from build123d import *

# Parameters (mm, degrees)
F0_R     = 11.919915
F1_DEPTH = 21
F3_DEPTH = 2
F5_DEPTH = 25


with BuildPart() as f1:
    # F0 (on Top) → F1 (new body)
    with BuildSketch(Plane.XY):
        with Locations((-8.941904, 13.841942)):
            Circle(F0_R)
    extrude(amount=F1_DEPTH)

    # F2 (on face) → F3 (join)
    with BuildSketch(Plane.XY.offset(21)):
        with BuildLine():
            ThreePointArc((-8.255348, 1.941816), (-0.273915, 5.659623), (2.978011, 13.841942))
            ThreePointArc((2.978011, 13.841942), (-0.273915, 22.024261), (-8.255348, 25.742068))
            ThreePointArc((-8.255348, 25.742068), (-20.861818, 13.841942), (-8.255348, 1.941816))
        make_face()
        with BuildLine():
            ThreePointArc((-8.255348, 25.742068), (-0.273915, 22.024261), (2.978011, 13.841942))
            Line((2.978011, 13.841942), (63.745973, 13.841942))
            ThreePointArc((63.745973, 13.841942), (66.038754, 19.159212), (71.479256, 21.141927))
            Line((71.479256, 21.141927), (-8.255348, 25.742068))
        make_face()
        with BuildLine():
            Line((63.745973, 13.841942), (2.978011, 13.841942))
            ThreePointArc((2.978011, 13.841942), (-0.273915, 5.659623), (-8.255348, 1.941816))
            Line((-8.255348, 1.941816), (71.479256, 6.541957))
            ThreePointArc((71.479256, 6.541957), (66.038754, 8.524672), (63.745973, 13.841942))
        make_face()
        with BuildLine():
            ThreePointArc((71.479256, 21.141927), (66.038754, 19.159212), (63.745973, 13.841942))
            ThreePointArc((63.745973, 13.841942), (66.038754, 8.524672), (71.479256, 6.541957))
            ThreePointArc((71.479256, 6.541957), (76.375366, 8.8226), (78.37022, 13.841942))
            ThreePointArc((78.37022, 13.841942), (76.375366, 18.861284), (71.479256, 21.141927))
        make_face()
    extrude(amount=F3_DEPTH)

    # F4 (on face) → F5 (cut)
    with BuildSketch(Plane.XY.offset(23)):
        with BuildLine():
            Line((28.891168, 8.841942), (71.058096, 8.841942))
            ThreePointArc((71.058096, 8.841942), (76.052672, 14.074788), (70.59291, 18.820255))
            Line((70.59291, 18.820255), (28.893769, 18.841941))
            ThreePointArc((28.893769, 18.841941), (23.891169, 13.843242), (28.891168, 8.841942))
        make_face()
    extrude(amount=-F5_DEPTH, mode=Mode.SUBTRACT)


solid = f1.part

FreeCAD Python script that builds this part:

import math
import FreeCAD as App
import Part
import Sketcher
Q = App.Units.Quantity

doc = App.newDocument("Part")
body = doc.addObject("PartDesign::Body", "Body")

# Sketch on XY plane
sketch1 = body.newObject("Sketcher::SketchObject", "Sketch")
sketch1.AttachmentSupport = (doc.getObject("XY_Plane"), [""])
sketch1.MapMode = "FlatFace"
sketch1.addGeometry(Part.Circle(App.Vector(-9, 14, 0), App.Vector(0, 0, 1), 12), False)
sketch1.addConstraint(Sketcher.Constraint("Diameter", 0, Q("23.83983 mm")))
sketch1.addConstraint(Sketcher.Constraint("DistanceX", 0, 3, -1, 1, Q("8.941904 mm")))
sketch1.addConstraint(Sketcher.Constraint("DistanceY", -1, 1, 0, 3, Q("13.841942 mm")))
pad1 = body.newObject("PartDesign::Pad", "Pad")
pad1.Profile = sketch1
pad1.Length = 21

# Sketch on XY plane
sketch2 = body.newObject("Sketcher::SketchObject", "Sketch001")
sketch2.AttachmentSupport = (doc.getObject("XY_Plane"), [""])
sketch2.MapMode = "FlatFace"
sketch2.AttachmentOffset = App.Placement(App.Vector(0, 0, 21), App.Rotation())
sketch2.addGeometry(Part.LineSegment(App.Vector(71, 21, 0), App.Vector(-8, 26, 0)), False)
sketch2.addGeometry(Part.ArcOfCircle(Part.Circle(App.Vector(-9, 14, 0), App.Vector(0, 0, 1), 12), math.radians(87), math.radians(273)), False)
sketch2.addGeometry(Part.LineSegment(App.Vector(-8, 2, 0), App.Vector(71, 7, 0)), False)
sketch2.addGeometry(Part.ArcOfCircle(Part.Circle(App.Vector(71, 14, 0), App.Vector(0, 0, 1), 7), math.radians(-87), math.radians(0)), False)
sketch2.addGeometry(Part.ArcOfCircle(Part.Circle(App.Vector(71, 14, 0), App.Vector(0, 0, 1), 7), math.radians(0), math.radians(87)), False)
sketch2.addConstraint(Sketcher.Constraint("Tangent", 0, 2, 1, 1))
sketch2.addConstraint(Sketcher.Constraint("Tangent", 1, 2, 2, 1))
sketch2.addConstraint(Sketcher.Constraint("Tangent", 2, 2, 3, 1))
sketch2.addConstraint(Sketcher.Constraint("Tangent", 3, 2, 4, 1))
sketch2.addConstraint(Sketcher.Constraint("Tangent", 4, 2, 0, 1))
sketch2.addConstraint(Sketcher.Constraint("Equal", 3, 4))
sketch2.addConstraint(Sketcher.Constraint("Horizontal", 1, 3, 3, 3))
sketch2.addConstraint(Sketcher.Constraint("Horizontal", 4, 3, 3, 2))
sketch2.addConstraint(Sketcher.Constraint("DistanceX", 1, 3, 3, 3, Q("79.999999 mm")))
sketch2.addConstraint(Sketcher.Constraint("Radius", 1, Q("11.919914 mm")))
sketch2.addConstraint(Sketcher.Constraint("Radius", 3, Q("7.312124 mm")))
sketch2.addConstraint(Sketcher.Constraint("DistanceY", -1, 1, 4, 3, Q("13.841942 mm")))
sketch2.addConstraint(Sketcher.Constraint("DistanceX", -1, 1, 3, 2, Q("78.37022 mm")))
pad2 = body.newObject("PartDesign::Pad", "Pad001")
pad2.Profile = sketch2
pad2.Length = 2

# Sketch on XY plane
sketch3 = body.newObject("Sketcher::SketchObject", "Sketch002")
sketch3.AttachmentSupport = (doc.getObject("XY_Plane"), [""])
sketch3.MapMode = "FlatFace"
sketch3.AttachmentOffset = App.Placement(App.Vector(0, 0, 23), App.Rotation())
sketch3.addGeometry(Part.LineSegment(App.Vector(28.891168, 8.841942, 0), App.Vector(71.058096, 8.841942, 0)), False)
sketch3.addGeometry(Part.ArcOfCircle(Part.Circle(App.Vector(71.058097, 13.841942, 0), App.Vector(0, 0, 1), 5), math.radians(-90.000008), math.radians(95.338368)), False)
sketch3.addGeometry(Part.LineSegment(App.Vector(70.59291, 18.820255, 0), App.Vector(28.893769, 18.841941, 0)), False)
sketch3.addGeometry(Part.ArcOfCircle(Part.Circle(App.Vector(28.891169, 13.841942, 0), App.Vector(0, 0, 1), 5), math.radians(89.970202), math.radians(269.999992)), False)
sketch3.addConstraint(Sketcher.Constraint("Coincident", 0, 2, 1, 1))
sketch3.addConstraint(Sketcher.Constraint("Coincident", 1, 2, 2, 1))
sketch3.addConstraint(Sketcher.Constraint("Coincident", 2, 2, 3, 1))
sketch3.addConstraint(Sketcher.Constraint("Coincident", 3, 2, 0, 1))
sketch3.addConstraint(Sketcher.Constraint("Horizontal", 0))
sketch3.addConstraint(Sketcher.Constraint("Radius", 1, Q("5 mm")))
sketch3.addConstraint(Sketcher.Constraint("Radius", 3, Q("5 mm")))
sketch3.addConstraint(Sketcher.Constraint("DistanceX", 0, 1, 0, 2, Q("42.166928 mm")))
sketch3.addConstraint(Sketcher.Constraint("DistanceX", 3, 3, 2, 2, Q("0.0026 mm")))
sketch3.addConstraint(Sketcher.Constraint("DistanceX", 3, 2, 2, 2, Q("0.002601 mm")))
sketch3.addConstraint(Sketcher.Constraint("DistanceY", -1, 1, 1, 3, Q("13.841942 mm")))
sketch3.addConstraint(Sketcher.Constraint("DistanceX", -1, 1, 3, 3, Q("28.891169 mm")))
sketch3.addConstraint(Sketcher.Constraint("DistanceX", -1, 1, 1, 2, Q("70.59291 mm")))
sketch3.addConstraint(Sketcher.Constraint("DistanceX", 3, 3, 1, 3, Q("42.166928 mm")))
pocket1 = body.newObject("PartDesign::Pocket", "Pocket")
pocket1.Profile = sketch3
pocket1.Length = 25

doc.recompute()
